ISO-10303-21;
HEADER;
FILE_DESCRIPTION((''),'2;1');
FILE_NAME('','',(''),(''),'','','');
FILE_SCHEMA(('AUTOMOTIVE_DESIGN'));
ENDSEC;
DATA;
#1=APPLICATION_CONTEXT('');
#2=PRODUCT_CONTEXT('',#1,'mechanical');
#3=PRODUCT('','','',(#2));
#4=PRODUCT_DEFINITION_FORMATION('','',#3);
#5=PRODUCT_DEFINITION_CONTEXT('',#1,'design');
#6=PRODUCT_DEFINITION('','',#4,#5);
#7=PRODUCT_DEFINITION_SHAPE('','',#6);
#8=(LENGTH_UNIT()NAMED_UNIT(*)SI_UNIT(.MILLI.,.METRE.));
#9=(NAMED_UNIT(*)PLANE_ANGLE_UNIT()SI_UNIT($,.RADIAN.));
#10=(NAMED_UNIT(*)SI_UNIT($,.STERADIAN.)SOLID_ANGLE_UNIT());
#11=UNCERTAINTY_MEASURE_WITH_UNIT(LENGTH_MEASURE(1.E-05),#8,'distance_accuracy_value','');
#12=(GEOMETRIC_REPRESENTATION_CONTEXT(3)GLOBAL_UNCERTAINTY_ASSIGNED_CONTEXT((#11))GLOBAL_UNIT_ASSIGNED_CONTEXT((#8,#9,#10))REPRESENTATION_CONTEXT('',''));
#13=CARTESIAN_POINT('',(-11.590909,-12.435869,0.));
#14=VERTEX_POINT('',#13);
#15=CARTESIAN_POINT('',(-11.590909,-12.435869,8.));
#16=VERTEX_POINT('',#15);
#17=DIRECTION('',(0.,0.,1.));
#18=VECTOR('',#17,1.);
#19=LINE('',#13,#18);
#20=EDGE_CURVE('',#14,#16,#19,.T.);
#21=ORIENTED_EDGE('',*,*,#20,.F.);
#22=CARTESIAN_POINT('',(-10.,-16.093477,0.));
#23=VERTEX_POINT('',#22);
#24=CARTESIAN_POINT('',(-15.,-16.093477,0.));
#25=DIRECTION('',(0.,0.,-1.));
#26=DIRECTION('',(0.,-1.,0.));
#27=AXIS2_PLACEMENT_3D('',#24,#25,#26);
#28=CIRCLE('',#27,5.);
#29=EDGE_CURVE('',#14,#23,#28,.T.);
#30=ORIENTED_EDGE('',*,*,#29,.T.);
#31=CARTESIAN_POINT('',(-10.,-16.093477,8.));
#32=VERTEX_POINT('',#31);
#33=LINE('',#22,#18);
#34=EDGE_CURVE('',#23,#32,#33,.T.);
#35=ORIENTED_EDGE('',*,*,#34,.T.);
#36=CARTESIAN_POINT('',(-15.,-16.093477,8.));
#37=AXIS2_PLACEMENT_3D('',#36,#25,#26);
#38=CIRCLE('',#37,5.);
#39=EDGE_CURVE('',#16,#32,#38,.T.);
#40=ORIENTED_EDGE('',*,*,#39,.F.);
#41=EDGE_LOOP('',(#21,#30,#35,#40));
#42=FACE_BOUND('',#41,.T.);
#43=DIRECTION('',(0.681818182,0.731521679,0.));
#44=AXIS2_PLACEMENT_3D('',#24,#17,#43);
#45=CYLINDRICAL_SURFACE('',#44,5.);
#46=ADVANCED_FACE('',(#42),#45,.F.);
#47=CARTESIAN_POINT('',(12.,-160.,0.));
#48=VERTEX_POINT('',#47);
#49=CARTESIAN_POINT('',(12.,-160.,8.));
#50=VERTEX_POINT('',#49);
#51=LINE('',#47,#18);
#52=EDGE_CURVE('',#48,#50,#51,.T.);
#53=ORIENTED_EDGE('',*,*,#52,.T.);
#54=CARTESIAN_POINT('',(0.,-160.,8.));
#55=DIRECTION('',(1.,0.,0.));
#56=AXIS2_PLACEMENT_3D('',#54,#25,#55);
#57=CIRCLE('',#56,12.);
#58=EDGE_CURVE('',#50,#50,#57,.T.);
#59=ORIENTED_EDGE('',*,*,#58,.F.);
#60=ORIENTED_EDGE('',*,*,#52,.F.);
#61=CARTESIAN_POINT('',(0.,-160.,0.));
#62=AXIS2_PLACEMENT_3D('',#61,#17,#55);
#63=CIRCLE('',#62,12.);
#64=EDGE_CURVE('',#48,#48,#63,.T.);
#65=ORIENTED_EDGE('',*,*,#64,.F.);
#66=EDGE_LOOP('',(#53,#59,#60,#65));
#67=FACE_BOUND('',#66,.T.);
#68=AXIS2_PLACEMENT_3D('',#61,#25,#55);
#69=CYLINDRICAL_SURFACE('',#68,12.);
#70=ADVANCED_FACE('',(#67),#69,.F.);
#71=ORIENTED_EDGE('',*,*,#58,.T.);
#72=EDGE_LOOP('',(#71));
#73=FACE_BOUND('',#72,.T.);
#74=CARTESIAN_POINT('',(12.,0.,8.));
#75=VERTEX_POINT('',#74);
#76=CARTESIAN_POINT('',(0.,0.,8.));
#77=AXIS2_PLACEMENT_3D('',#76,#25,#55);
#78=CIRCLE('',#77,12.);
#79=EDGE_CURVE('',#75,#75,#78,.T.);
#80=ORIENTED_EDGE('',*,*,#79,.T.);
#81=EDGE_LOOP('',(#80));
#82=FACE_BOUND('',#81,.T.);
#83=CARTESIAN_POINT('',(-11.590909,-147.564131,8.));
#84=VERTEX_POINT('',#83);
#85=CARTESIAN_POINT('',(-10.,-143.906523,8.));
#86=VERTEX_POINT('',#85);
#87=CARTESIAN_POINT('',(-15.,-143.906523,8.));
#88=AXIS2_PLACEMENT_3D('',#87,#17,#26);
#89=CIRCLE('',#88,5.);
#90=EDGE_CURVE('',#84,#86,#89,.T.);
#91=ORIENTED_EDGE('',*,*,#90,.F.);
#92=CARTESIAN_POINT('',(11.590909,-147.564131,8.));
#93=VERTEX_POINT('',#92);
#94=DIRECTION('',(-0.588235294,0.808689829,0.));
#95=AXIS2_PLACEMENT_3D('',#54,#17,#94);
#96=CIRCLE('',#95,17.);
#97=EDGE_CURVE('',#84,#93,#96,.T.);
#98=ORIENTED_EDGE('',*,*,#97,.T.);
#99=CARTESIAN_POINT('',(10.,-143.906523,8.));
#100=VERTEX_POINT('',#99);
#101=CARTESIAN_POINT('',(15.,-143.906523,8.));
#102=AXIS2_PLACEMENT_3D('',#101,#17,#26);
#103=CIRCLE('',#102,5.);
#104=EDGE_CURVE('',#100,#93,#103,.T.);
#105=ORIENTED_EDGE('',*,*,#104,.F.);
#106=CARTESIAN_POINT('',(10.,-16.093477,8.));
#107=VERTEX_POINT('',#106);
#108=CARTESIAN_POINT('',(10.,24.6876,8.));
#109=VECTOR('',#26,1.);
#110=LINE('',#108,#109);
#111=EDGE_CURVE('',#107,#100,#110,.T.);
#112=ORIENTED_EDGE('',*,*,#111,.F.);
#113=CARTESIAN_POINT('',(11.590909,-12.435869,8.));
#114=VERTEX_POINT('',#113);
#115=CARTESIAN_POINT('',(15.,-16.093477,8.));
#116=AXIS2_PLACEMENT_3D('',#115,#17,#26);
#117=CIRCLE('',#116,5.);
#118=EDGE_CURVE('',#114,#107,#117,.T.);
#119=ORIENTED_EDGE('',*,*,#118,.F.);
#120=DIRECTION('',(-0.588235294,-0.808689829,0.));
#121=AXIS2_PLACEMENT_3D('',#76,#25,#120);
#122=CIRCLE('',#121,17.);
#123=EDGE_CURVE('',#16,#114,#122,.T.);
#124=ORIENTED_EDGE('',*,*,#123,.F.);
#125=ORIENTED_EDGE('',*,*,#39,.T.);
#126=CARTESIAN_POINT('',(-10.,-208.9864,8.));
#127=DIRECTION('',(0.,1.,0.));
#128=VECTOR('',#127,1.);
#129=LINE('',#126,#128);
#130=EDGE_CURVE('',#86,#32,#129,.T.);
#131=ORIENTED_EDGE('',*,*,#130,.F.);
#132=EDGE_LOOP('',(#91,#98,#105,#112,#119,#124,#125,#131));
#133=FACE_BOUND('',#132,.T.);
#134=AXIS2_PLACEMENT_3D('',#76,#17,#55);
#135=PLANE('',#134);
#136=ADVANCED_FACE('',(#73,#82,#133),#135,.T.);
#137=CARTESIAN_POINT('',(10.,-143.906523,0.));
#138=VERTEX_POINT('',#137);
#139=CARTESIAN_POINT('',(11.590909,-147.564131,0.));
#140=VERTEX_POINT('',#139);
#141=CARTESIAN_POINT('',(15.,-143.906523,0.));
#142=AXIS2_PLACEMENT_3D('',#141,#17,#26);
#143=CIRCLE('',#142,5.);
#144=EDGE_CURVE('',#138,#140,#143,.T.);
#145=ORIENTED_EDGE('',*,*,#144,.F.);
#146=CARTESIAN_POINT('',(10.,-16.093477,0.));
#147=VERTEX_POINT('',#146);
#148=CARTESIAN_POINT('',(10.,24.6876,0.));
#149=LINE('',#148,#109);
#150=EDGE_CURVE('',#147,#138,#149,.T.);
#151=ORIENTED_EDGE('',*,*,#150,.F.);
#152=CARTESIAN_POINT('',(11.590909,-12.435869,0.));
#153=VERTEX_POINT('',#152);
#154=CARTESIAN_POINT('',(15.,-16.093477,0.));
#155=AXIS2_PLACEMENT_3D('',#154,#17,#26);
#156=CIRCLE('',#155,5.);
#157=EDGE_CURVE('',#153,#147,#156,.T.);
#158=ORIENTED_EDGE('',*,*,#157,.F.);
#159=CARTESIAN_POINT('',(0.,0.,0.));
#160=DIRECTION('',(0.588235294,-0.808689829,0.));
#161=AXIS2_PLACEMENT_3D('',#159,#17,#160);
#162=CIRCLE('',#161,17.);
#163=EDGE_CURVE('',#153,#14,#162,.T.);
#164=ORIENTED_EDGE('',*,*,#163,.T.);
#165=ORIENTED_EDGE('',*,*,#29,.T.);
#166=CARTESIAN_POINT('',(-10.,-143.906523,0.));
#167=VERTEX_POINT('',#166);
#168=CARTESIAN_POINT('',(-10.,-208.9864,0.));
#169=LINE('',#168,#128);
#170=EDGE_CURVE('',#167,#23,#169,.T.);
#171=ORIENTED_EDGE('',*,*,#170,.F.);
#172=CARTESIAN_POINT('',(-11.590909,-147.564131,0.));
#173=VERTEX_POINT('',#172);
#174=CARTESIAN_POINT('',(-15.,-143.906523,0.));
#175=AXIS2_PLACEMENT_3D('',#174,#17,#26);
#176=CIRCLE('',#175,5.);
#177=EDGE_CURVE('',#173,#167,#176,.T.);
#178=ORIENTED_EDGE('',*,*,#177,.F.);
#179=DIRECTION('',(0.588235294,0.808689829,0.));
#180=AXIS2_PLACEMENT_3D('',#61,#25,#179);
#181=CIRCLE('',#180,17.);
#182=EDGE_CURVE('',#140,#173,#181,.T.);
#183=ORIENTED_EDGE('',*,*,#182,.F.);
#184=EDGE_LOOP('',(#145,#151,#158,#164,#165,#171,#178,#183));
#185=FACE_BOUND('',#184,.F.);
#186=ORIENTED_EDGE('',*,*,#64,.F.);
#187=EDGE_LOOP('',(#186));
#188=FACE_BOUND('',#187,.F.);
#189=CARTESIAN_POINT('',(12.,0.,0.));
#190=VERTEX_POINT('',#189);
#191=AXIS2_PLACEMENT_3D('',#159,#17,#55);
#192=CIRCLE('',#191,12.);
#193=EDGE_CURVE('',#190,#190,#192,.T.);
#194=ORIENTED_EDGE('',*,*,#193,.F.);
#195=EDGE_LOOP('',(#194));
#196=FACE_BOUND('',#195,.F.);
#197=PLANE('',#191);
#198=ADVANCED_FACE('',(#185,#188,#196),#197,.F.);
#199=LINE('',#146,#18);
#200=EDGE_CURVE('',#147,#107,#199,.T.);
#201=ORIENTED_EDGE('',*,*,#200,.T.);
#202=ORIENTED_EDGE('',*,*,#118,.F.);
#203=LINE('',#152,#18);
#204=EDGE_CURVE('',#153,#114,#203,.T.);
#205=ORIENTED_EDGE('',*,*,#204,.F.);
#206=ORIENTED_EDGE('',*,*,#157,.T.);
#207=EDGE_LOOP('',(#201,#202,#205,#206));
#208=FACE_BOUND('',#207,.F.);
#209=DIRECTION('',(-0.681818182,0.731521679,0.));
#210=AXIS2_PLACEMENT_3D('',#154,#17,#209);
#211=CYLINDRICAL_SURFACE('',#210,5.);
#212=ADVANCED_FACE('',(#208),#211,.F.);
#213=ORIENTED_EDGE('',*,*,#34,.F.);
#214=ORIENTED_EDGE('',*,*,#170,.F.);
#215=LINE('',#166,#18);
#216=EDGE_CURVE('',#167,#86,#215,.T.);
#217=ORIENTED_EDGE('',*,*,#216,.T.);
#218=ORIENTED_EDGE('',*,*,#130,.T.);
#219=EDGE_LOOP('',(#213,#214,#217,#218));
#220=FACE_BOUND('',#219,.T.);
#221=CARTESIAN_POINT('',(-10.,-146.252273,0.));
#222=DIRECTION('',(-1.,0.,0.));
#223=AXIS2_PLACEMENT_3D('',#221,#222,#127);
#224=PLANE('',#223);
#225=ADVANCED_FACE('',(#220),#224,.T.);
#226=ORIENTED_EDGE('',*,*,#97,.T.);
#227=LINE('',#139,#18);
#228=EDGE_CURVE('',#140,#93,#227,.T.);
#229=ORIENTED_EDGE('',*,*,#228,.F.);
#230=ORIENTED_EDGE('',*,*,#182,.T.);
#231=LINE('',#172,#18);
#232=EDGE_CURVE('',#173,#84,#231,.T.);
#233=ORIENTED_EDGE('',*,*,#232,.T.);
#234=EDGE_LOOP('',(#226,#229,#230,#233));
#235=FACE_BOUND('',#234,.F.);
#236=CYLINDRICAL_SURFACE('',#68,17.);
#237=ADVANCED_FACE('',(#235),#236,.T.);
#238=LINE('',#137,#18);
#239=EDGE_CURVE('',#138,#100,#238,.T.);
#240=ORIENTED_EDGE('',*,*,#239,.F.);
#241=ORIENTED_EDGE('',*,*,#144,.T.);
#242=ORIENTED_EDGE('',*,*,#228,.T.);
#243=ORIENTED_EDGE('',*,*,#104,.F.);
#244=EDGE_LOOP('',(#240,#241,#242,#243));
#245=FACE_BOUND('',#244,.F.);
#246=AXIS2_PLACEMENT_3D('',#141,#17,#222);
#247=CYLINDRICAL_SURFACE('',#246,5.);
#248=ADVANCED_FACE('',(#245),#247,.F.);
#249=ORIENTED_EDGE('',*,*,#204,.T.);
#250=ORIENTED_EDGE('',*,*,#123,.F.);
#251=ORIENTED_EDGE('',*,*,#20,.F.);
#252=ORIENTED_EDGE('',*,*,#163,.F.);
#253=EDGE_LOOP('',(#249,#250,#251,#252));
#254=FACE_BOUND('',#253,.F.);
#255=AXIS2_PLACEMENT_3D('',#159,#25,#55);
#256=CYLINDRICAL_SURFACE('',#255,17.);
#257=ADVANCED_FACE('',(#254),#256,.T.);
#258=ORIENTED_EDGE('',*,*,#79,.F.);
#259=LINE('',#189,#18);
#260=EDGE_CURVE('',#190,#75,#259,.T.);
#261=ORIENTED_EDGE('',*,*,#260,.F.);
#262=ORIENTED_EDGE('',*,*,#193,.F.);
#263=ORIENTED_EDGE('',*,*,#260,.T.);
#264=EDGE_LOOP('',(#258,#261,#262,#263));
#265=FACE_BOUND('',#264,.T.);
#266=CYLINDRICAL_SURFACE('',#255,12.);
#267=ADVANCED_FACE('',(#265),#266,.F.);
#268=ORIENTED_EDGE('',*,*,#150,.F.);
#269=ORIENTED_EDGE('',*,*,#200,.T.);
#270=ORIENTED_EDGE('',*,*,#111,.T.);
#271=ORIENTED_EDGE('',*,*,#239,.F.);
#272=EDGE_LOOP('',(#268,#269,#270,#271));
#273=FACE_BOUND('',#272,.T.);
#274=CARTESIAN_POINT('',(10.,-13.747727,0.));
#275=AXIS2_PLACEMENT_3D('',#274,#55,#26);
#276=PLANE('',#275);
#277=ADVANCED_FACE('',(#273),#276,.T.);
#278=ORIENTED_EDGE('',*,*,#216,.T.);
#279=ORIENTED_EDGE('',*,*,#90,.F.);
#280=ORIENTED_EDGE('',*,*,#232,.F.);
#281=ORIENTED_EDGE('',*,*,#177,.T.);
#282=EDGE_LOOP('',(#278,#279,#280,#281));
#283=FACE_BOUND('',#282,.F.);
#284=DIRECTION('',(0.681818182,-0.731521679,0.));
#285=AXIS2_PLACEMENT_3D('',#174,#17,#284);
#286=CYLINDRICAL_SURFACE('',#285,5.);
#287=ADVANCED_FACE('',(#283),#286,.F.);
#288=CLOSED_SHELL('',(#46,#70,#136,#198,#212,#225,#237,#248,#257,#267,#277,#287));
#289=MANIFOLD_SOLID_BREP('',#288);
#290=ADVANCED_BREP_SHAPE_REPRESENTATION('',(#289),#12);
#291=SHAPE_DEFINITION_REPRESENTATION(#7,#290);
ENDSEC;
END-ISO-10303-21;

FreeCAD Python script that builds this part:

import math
import FreeCAD as App
import Part
import Sketcher
Q = App.Units.Quantity


def edges_at(feature, points):
    """Names of the edges that pass closest to the given points."""
    edges = feature.Shape.Edges
    near = lambda p: min(range(len(edges)), key=lambda i: edges[i].distToShape(Part.Vertex(*p))[0])
    return sorted({f"Edge{near(p) + 1}" for p in points})

doc = App.newDocument("Part")
body = doc.addObject("PartDesign::Body", "Body")

# Sketch on XY plane
sketch1 = body.newObject("Sketcher::SketchObject", "Sketch")
sketch1.AttachmentSupport = (doc.getObject("XY_Plane"), [""])
sketch1.MapMode = "FlatFace"
sketch1.addGeometry(Part.ArcOfCircle(Part.Circle(App.Vector(0, 0, 0), App.Vector(0, 0, 1), 17), math.radians(-54), math.radians(234)), False)
sketch1.addGeometry(Part.LineSegment(App.Vector(-10, -14, 0), App.Vector(-10, -146, 0)), False)
sketch1.addGeometry(Part.ArcOfCircle(Part.Circle(App.Vector(0, -160, 0), App.Vector(0, 0, 1), 17), math.radians(126), math.radians(414)), False)
sketch1.addGeometry(Part.LineSegment(App.Vector(10, -146, 0), App.Vector(10, -14, 0)), False)
sketch1.addGeometry(Part.Circle(App.Vector(0, 0, 0), App.Vector(0, 0, 1), 12), False)
sketch1.addGeometry(Part.Circle(App.Vector(0, -160, 0), App.Vector(0, 0, 1), 12), False)
sketch1.addConstraint(Sketcher.Constraint("Coincident", 0, 2, 1, 1))
sketch1.addConstraint(Sketcher.Constraint("Coincident", 1, 2, 2, 1))
sketch1.addConstraint(Sketcher.Constraint("Coincident", 2, 2, 3, 1))
sketch1.addConstraint(Sketcher.Constraint("Coincident", 3, 2, 0, 1))
sketch1.addConstraint(Sketcher.Constraint("Vertical", 1))
sketch1.addConstraint(Sketcher.Constraint("Vertical", 3))
sketch1.addConstraint(Sketcher.Constraint("Coincident", 0, 3, -1, 1))
sketch1.addConstraint(Sketcher.Constraint("Coincident", 4, 3, -1, 1))
sketch1.addConstraint(Sketcher.Constraint("Coincident", 5, 3, 2, 3))
sketch1.addConstraint(Sketcher.Constraint("Equal", 0, 2))
sketch1.addConstraint(Sketcher.Constraint("Equal", 4, 5))
sketch1.addConstraint(Sketcher.Constraint("Symmetric", 1, 2, 2, 2, -2))
sketch1.addConstraint(Sketcher.Constraint("Diameter", 4, Q("24 mm")))
sketch1.addConstraint(Sketcher.Constraint("Radius", 0, Q("17 mm")))
sketch1.addConstraint(Sketcher.Constraint("DistanceY", 2, 3, -1, 1, Q("160 mm")))
sketch1.addConstraint(Sketcher.Constraint("DistanceX", 0, 2, -1, 1, Q("10 mm")))
pad1 = body.newObject("PartDesign::Pad", "Pad")
pad1.Profile = sketch1
pad1.Length = 8
doc.recompute()

fillet = body.newObject("PartDesign::Fillet", "Fillet")
fillet.Base = (pad1, edges_at(pad1, [
    (-10, -146.252, 4),
    (10, -146.252, 4),
    (10, -13.748, 4),
    (-10, -13.748, 4),
]))
fillet.Radius = 5

doc.recompute()
